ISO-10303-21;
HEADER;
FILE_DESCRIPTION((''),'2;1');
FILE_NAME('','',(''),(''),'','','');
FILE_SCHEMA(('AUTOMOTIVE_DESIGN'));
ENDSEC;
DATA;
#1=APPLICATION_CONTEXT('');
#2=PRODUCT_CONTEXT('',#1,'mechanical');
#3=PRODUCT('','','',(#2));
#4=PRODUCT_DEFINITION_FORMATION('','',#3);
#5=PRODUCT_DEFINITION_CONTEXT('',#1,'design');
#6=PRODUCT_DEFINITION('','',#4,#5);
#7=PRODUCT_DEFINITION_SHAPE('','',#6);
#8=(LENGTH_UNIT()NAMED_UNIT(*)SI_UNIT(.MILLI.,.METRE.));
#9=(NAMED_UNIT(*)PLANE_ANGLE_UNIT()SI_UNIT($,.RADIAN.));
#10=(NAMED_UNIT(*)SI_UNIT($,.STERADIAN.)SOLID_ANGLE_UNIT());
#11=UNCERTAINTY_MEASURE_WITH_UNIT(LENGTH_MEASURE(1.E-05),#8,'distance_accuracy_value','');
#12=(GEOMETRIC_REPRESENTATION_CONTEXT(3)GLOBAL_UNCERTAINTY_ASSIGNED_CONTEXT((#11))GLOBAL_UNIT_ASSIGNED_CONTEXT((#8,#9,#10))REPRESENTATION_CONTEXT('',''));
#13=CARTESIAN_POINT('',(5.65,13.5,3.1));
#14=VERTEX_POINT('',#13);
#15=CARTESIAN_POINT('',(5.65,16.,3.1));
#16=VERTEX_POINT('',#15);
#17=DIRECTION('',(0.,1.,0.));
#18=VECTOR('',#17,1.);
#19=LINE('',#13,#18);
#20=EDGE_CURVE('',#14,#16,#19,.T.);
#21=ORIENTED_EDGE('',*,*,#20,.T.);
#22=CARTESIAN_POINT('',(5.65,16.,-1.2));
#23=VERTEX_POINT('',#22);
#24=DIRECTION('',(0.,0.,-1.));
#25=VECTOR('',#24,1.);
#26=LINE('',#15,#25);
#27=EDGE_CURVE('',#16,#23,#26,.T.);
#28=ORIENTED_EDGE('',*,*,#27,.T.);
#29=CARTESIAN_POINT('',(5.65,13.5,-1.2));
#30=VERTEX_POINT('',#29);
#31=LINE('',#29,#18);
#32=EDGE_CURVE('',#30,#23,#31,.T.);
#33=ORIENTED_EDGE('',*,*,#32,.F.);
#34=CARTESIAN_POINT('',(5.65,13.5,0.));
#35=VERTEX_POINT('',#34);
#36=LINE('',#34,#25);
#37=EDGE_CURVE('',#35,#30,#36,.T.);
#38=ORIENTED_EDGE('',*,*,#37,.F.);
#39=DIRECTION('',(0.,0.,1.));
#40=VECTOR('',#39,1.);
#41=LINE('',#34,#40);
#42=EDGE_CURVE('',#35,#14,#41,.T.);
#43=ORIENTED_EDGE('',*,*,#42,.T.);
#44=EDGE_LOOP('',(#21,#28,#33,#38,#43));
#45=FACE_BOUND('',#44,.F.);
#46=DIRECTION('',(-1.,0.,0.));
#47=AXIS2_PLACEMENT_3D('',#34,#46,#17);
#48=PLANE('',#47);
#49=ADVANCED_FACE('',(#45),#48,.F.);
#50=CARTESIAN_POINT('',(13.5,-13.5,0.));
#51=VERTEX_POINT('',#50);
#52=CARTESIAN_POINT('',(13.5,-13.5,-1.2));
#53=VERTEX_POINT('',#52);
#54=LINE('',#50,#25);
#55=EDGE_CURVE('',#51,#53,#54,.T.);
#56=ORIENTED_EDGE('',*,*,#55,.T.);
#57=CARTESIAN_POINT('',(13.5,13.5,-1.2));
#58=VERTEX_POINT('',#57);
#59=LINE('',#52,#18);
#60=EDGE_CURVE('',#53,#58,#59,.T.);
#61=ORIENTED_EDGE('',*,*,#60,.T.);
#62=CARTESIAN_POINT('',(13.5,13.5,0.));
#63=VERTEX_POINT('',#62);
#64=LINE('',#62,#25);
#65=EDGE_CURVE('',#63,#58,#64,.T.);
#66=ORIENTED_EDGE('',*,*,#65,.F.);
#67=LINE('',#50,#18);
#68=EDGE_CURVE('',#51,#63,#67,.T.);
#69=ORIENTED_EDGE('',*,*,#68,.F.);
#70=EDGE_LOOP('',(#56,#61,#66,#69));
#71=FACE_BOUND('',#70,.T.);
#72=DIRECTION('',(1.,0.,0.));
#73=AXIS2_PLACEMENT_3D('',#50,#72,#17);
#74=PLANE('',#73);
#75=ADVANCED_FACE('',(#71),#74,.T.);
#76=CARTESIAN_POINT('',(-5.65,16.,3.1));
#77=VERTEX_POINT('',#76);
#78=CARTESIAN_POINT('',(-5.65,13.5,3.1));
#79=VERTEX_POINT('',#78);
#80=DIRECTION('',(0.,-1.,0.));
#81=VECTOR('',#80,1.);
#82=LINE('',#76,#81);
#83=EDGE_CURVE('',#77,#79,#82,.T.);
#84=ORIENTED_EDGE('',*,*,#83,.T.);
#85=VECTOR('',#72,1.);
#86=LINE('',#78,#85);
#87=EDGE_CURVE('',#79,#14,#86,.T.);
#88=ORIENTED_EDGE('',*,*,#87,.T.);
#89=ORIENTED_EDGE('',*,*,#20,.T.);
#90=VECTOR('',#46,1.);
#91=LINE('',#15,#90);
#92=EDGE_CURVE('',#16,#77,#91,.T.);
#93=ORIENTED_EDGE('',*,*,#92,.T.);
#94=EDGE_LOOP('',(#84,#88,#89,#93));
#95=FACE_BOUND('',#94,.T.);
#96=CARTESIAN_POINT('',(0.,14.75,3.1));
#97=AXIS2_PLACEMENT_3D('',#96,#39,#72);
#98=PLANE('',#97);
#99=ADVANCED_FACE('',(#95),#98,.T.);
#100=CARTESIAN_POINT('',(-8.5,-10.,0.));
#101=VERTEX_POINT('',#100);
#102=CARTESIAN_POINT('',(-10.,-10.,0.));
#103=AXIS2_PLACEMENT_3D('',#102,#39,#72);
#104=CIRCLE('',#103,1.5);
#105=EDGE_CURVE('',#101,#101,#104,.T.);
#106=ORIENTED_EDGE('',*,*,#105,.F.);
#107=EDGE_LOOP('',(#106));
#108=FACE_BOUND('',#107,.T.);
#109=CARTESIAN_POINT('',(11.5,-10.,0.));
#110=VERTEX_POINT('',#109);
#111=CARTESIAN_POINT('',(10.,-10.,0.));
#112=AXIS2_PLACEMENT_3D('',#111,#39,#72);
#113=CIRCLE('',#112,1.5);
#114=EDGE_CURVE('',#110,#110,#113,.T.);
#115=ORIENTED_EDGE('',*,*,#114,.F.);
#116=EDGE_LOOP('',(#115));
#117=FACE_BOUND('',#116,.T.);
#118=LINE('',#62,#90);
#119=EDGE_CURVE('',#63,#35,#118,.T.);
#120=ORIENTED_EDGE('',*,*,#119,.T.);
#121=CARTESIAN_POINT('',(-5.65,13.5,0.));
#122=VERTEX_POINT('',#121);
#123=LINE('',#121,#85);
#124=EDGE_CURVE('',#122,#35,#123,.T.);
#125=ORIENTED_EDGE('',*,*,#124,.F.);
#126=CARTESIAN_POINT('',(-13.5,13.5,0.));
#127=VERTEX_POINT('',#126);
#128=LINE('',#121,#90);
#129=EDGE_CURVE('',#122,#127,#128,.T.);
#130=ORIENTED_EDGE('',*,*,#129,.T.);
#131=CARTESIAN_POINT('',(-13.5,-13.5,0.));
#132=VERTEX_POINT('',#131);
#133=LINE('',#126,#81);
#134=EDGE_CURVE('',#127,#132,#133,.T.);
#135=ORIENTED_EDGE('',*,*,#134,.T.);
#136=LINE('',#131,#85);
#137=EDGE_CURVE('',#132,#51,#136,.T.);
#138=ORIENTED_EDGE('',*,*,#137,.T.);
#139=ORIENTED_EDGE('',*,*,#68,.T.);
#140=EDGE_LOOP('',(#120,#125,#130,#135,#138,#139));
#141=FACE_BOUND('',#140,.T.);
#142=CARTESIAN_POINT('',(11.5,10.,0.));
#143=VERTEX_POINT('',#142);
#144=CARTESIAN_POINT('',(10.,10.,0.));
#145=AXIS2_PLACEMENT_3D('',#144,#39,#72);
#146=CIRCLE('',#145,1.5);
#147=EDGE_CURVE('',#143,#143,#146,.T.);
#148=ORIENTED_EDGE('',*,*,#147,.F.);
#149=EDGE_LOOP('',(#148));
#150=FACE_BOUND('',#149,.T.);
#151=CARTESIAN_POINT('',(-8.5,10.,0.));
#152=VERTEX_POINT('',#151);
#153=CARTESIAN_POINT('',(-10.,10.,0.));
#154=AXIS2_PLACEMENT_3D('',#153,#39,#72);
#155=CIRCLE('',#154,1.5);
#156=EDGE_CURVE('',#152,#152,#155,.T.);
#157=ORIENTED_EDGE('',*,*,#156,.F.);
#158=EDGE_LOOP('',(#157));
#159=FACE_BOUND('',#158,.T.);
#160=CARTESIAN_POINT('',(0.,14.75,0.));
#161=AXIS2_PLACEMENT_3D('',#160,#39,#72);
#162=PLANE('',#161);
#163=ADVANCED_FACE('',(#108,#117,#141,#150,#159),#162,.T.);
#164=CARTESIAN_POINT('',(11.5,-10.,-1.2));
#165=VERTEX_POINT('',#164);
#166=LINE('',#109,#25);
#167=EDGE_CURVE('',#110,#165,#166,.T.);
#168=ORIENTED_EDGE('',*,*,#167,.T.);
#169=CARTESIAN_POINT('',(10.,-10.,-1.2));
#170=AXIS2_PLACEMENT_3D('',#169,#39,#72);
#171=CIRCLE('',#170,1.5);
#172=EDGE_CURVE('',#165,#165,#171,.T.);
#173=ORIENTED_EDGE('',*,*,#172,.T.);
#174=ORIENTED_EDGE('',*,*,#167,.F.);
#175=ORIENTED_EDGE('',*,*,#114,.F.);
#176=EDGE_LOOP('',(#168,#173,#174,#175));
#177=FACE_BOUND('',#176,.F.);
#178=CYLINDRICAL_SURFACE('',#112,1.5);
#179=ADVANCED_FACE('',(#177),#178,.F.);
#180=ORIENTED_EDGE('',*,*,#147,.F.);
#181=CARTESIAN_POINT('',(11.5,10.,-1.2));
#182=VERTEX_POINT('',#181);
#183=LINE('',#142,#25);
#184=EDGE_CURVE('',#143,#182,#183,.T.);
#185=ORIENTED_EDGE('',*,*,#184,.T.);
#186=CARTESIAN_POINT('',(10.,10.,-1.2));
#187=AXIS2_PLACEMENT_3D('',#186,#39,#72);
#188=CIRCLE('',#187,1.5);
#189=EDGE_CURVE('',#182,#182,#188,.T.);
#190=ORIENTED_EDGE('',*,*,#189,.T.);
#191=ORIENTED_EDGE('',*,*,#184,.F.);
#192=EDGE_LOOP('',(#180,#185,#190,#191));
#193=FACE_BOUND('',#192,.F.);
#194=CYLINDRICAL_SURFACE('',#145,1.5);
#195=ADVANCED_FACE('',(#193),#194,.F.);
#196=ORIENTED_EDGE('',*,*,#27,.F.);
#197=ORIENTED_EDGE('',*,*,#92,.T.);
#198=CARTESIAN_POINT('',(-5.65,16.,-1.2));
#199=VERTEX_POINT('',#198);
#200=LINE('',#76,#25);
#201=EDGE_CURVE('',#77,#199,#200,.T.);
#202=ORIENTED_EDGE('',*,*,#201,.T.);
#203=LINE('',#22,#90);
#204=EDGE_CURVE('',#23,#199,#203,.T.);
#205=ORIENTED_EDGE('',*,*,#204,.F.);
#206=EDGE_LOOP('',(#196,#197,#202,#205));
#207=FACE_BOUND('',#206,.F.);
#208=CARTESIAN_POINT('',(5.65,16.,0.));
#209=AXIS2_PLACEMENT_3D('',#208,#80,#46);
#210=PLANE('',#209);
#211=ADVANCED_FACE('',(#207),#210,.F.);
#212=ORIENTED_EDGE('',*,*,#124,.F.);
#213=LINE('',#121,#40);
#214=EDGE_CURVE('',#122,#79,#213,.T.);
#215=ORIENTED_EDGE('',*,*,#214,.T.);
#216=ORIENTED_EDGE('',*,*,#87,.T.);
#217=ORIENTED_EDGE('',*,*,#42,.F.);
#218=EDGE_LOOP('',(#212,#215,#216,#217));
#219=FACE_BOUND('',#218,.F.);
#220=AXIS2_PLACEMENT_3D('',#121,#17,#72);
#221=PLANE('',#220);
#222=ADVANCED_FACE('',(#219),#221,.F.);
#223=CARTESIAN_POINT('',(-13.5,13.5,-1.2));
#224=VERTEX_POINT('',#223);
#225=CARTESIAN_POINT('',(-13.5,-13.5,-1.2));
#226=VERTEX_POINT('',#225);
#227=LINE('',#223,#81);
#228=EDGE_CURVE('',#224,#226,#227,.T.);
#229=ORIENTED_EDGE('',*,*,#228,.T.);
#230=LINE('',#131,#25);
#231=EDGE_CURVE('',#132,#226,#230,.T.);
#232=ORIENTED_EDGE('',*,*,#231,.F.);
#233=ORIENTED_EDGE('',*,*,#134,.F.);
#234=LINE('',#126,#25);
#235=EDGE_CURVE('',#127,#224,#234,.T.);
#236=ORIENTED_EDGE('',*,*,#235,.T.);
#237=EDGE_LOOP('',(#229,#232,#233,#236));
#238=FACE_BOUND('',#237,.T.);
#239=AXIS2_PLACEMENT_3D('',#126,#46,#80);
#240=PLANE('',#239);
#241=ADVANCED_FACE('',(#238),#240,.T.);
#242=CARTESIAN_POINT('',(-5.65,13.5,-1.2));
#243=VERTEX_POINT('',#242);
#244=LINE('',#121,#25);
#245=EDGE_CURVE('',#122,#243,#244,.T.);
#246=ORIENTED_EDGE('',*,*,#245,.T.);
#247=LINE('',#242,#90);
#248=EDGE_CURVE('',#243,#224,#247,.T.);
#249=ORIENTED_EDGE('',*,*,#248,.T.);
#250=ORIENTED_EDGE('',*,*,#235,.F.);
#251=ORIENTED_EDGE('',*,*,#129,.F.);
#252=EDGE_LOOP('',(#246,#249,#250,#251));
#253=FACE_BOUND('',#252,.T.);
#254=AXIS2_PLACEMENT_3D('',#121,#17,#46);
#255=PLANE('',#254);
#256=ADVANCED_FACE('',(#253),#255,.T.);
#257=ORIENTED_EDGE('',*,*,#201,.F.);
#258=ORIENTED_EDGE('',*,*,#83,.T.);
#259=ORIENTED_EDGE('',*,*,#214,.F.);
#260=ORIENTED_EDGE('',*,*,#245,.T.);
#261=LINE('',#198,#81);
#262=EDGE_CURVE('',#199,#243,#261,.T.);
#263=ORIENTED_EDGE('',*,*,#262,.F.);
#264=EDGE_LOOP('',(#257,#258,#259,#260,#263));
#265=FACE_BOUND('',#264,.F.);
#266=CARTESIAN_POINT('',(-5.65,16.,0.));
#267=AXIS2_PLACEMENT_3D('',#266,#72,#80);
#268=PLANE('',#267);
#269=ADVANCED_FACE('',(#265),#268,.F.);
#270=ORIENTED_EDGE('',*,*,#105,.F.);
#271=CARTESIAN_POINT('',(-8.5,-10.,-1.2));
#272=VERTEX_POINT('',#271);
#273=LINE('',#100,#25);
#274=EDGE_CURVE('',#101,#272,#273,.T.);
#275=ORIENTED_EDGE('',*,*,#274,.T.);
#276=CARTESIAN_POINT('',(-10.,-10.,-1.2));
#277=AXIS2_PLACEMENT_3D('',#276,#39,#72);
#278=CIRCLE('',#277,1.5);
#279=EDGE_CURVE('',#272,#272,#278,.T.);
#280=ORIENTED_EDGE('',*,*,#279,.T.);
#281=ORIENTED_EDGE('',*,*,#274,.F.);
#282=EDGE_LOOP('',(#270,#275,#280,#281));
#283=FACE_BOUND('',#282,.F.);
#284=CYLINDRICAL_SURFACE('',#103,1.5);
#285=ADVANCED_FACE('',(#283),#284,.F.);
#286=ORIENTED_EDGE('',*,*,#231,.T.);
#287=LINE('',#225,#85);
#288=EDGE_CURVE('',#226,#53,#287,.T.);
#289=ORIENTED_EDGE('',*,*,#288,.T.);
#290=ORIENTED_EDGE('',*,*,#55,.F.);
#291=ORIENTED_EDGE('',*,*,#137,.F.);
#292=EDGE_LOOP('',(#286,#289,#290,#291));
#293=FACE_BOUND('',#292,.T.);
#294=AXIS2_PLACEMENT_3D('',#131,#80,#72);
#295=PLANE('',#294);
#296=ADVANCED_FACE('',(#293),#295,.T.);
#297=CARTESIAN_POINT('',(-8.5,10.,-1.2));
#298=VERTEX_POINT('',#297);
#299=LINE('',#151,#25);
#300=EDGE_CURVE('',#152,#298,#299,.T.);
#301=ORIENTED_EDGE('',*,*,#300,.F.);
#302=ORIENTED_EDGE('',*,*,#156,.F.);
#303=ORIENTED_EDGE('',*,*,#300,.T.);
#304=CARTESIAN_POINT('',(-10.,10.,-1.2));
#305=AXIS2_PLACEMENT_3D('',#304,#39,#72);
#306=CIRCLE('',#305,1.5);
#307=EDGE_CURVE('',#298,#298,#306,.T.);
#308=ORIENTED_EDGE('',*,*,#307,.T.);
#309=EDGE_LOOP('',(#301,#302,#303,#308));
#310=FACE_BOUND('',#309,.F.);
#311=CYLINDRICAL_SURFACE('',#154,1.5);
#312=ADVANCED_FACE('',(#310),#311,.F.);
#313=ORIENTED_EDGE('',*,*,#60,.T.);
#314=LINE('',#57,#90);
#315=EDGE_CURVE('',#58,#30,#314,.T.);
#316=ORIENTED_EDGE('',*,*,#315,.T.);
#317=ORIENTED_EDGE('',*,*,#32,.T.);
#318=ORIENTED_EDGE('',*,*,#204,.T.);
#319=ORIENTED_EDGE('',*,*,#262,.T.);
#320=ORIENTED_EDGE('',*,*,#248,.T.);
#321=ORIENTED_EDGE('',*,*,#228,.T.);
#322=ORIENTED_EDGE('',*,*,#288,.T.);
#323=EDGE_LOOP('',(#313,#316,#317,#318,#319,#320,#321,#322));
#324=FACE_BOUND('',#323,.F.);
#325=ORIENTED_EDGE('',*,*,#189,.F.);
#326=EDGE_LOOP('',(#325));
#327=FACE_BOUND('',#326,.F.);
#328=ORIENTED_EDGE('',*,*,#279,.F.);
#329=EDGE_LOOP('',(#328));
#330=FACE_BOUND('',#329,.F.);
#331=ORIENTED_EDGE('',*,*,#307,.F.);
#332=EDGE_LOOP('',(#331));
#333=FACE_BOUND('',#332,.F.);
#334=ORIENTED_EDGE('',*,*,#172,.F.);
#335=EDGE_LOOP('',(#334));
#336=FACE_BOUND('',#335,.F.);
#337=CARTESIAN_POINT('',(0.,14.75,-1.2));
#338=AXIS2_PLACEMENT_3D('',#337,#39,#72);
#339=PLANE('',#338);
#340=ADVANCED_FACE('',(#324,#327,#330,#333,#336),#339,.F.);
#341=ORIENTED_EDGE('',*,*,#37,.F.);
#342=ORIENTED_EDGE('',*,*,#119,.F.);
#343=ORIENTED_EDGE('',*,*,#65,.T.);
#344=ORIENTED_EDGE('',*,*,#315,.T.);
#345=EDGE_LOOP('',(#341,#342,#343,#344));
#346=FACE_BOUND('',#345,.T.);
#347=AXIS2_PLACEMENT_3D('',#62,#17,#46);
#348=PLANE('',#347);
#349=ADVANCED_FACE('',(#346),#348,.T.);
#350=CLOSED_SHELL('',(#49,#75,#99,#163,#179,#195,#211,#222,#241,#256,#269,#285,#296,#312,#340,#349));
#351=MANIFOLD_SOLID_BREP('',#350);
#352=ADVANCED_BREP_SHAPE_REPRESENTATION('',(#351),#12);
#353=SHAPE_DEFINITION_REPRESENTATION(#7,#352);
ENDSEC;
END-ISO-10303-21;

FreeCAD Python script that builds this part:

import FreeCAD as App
import Part
import Sketcher

V = App.Vector
Q = App.Units.Quantity


def add_polygon(sketch, points):
    """Adds a closed chain of lines whose ends are joined by coincident constraints."""
    first, n = sketch.GeometryCount, len(points)
    for a, b in zip(points, points[1:] + points[:1]):
        sketch.addGeometry(Part.LineSegment(App.Vector(*a, 0), App.Vector(*b, 0)), False)
    for i in range(n):
        sketch.addConstraint(Sketcher.Constraint("Coincident", first + i, 2, first + (i + 1) % n, 1))

doc = App.newDocument("Part")
body = doc.addObject("PartDesign::Body", "Body")

# Sketch on XY plane
sketch1 = body.newObject("Sketcher::SketchObject", "Sketch")
sketch1.AttachmentSupport = (doc.getObject("XY_Plane"), [""])
sketch1.MapMode = "FlatFace"
add_polygon(sketch1, [(-5.65, 16), (-5.65, 13.5), (-13.5, 13.5), (-13.5, -13.5), (13.5, -13.5), (13.5, 13.5), (5.65, 13.5), (5.65, 16)])  # lines 0-7
sketch1.addGeometry(Part.Circle(V(-10, -10, 0), V(0, 0, 1), 1.5), False)  # 8
sketch1.addGeometry(Part.Circle(V(10, -10, 0), V(0, 0, 1), 1.5), False)  # 9
sketch1.addGeometry(Part.Circle(V(-10, 10, 0), V(0, 0, 1), 1.5), False)  # 10
sketch1.addGeometry(Part.Circle(V(10, 10, 0), V(0, 0, 1), 1.5), False)  # 11
sketch1.addConstraint([
    Sketcher.Constraint("Vertical", 0),
    Sketcher.Constraint("Horizontal", 1),
    Sketcher.Constraint("Vertical", 2),
    Sketcher.Constraint("Horizontal", 3),
    Sketcher.Constraint("Vertical", 4),
    Sketcher.Constraint("Horizontal", 5),
    Sketcher.Constraint("Vertical", 6),
    Sketcher.Constraint("Horizontal", 7),
    Sketcher.Constraint("Equal", 8, 9),
    Sketcher.Constraint("Equal", 9, 10),
    Sketcher.Constraint("Equal", 10, 11),
    Sketcher.Constraint("Symmetric", 9, 3, 10, 3, -1, 1),
    Sketcher.Constraint("Symmetric", 8, 3, 11, 3, -1, 1),
    Sketcher.Constraint("Symmetric", 1, 2, 3, 2, -1, 1),
    Sketcher.Constraint("Symmetric", 8, 3, 9, 3, -2),
    Sketcher.Constraint("Symmetric", 0, 2, 5, 2, -2),
    Sketcher.Constraint("Equal", 3, 2),
    Sketcher.Constraint("Diameter", 8, Q("3 mm")),
    Sketcher.Constraint("DistanceX", 3, 1, 3, 2, Q("27 mm")),
    Sketcher.Constraint("DistanceX", 7, 2, 7, 1, Q("11.3 mm")),
    Sketcher.Constraint("DistanceY", 0, 2, 0, 1, Q("2.5 mm")),
    Sketcher.Constraint("DistanceX", 8, 3, -1, 1, Q("10 mm")),
    Sketcher.Constraint("DistanceY", 8, 3, -1, 1, Q("10 mm")),
])
pad1 = body.newObject("PartDesign::Pad", "Pad")
pad1.Profile = sketch1
pad1.Length = 1.2
pad1.Reversed = True

# Sketch on XY plane
sketch2 = body.newObject("Sketcher::SketchObject", "Sketch001")
sketch2.AttachmentSupport = (doc.getObject("XY_Plane"), [""])
sketch2.MapMode = "FlatFace"
add_polygon(sketch2, [(-5.65, 16), (-5.65, 13.5), (5.65, 13.5), (5.65, 16)])  # lines 0-3
sketch2.addConstraint([
    Sketcher.Constraint("Vertical", 0),
    Sketcher.Constraint("Horizontal", 1),
    Sketcher.Constraint("Vertical", 2),
    Sketcher.Constraint("Horizontal", 3),
    Sketcher.Constraint("DistanceX", 1, 1, 1, 2, Q("11.3 mm")),
    Sketcher.Constraint("DistanceY", 0, 2, 0, 1, Q("2.5 mm")),
    Sketcher.Constraint("DistanceY", -1, 1, 2, 2, Q("16 mm")),
    Sketcher.Constraint("DistanceX", 0, 2, -1, 1, Q("5.65 mm")),
])
pad2 = body.newObject("PartDesign::Pad", "Pad001")
pad2.Profile = sketch2
pad2.Length = 3.1

doc.recompute()
